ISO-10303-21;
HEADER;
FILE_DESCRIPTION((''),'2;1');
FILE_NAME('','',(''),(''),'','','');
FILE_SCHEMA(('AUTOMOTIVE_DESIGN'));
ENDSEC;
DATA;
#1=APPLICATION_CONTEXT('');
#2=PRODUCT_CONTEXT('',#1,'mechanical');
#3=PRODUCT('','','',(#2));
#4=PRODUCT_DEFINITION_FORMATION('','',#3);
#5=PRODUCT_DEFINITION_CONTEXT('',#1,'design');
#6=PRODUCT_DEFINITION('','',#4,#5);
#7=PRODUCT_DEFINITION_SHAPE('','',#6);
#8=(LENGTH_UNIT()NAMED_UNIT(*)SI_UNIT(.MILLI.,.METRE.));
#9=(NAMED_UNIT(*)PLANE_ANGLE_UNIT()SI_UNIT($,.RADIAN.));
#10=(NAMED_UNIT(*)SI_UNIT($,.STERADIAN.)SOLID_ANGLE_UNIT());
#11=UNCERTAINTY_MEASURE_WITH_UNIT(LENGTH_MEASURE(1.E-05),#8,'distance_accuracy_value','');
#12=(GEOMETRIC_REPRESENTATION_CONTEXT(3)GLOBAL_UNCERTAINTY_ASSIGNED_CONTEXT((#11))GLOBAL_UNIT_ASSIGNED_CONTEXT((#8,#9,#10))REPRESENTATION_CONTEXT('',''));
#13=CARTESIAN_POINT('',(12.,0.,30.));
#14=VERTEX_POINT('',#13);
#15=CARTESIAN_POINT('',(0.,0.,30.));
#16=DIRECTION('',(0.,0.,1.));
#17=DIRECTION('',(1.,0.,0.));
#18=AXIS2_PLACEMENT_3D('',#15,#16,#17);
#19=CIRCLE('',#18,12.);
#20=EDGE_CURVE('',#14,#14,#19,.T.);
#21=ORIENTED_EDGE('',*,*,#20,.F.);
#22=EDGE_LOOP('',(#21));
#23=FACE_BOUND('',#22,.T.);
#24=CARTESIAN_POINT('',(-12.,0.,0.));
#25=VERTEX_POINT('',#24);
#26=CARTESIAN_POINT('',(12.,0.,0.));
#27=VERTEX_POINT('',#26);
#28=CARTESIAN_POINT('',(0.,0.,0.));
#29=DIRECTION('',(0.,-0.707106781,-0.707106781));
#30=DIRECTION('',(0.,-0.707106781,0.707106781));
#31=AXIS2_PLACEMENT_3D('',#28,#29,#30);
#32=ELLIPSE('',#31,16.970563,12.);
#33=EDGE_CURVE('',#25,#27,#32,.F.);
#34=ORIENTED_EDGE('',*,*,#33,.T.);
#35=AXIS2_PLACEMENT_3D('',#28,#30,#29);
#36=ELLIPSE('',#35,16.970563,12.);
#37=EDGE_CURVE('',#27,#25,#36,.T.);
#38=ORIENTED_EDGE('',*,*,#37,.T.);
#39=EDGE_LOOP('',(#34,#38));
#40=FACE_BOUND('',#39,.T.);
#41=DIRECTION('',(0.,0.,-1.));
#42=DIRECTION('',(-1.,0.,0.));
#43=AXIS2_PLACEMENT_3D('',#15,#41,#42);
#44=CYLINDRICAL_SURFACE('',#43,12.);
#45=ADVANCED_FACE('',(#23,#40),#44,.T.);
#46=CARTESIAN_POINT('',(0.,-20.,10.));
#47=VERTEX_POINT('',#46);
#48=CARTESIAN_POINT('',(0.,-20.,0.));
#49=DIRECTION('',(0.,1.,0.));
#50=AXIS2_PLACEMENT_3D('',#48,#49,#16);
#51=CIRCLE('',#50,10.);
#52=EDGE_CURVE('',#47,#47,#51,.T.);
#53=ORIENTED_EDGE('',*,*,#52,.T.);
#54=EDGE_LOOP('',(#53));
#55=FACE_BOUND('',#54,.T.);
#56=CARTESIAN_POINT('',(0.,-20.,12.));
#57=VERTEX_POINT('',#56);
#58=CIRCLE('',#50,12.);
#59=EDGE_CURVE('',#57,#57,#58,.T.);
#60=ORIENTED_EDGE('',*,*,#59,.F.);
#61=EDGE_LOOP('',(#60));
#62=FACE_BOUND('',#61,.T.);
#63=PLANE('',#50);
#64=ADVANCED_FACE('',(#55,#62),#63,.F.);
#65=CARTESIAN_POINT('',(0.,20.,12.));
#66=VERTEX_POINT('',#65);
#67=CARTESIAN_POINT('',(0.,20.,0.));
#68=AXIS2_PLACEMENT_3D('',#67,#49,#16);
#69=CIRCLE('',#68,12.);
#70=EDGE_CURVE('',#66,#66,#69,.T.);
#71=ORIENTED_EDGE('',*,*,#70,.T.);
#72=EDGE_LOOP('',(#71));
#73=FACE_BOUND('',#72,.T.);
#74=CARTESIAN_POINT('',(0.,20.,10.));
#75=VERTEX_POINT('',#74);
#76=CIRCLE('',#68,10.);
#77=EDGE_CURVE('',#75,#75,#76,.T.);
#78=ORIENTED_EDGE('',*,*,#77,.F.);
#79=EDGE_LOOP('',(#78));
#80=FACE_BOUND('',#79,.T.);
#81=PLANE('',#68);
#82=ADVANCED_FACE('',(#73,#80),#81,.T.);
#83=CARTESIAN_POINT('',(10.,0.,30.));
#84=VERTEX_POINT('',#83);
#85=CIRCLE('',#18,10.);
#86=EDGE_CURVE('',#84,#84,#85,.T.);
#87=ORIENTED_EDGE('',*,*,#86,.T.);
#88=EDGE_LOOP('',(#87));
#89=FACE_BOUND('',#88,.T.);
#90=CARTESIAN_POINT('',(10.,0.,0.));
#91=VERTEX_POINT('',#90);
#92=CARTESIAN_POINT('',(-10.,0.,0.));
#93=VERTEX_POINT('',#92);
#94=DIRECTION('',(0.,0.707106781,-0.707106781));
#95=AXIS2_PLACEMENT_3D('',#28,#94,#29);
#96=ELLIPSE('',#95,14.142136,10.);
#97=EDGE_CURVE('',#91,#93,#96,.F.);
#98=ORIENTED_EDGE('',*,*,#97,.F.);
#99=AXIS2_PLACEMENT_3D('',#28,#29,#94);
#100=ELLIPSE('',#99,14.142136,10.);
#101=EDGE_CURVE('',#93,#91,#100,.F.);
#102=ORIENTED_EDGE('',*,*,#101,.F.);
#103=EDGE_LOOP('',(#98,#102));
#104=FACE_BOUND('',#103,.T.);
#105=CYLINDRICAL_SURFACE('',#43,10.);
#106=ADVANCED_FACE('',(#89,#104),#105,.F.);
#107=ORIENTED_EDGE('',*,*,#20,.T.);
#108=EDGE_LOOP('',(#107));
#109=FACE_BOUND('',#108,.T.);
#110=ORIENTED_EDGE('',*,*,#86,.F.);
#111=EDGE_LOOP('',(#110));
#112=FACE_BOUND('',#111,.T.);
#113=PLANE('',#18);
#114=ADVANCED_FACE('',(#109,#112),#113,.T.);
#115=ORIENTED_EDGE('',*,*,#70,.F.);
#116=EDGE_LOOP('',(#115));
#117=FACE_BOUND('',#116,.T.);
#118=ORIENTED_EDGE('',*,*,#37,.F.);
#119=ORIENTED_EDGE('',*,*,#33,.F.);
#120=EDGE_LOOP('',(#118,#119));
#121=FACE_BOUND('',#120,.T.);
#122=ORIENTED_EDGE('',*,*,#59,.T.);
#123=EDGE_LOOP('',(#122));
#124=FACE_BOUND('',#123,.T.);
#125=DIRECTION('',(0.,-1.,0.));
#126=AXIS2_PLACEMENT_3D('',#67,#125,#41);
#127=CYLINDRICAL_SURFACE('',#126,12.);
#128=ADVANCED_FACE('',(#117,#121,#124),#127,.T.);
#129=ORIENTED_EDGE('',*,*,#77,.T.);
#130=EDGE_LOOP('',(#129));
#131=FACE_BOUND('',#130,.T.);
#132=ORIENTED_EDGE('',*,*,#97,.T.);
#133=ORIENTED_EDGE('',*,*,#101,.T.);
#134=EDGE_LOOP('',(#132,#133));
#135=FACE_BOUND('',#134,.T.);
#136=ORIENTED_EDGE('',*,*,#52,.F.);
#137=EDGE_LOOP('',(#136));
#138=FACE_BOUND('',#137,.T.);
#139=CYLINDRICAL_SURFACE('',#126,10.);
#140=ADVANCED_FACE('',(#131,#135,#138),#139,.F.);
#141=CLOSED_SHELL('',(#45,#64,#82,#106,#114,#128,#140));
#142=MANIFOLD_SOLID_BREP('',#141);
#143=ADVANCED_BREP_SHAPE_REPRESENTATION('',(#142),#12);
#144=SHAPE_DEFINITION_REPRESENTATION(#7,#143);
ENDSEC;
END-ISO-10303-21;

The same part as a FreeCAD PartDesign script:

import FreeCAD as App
import Part
import Sketcher
from FreeCAD import Vector
Q = App.Units.Quantity

doc = App.newDocument("Part")
body = doc.addObject("PartDesign::Body", "Body")

# Sketch on XZ plane
sketch1 = body.newObject("Sketcher::SketchObject", "Sketch")
sketch1.AttachmentSupport = (doc.getObject("XZ_Plane"), [""])
sketch1.MapMode = "FlatFace"
sketch1.addGeometry([
    Part.Circle(Vector(0, 0, 0), Vector(0, 0, 1), 12),
    Part.Circle(Vector(0, 0, 0), Vector(0, 0, 1), 10),
], False)
sketch1.addConstraint([
    Sketcher.Constraint("Coincident", 0, 3, -1, 1),
    Sketcher.Constraint("Coincident", 1, 3, -1, 1),
    Sketcher.Constraint("Diameter", 0, Q("24 mm")),
    Sketcher.Constraint("Diameter", 1, Q("20 mm")),
])
pad1 = body.newObject("PartDesign::Pad", "Pad")
pad1.Profile = sketch1
pad1.Length = 40
pad1.Midplane = True

# Sketch on XY plane
sketch2 = body.newObject("Sketcher::SketchObject", "Sketch001")
sketch2.AttachmentSupport = (doc.getObject("XY_Plane"), [""])
sketch2.MapMode = "FlatFace"
sketch2.addGeometry([
    Part.Circle(Vector(0, 0, 0), Vector(0, 0, 1), 12),
    Part.Circle(Vector(0, 0, 0), Vector(0, 0, 1), 10),
], False)
sketch2.addConstraint([
    Sketcher.Constraint("Coincident", 0, 3, -1, 1),
    Sketcher.Constraint("Coincident", 1, 3, -1, 1),
    Sketcher.Constraint("Diameter", 0, Q("24 mm")),
    Sketcher.Constraint("Diameter", 1, Q("20 mm")),
])
pad2 = body.newObject("PartDesign::Pad", "Pad001")
pad2.Profile = sketch2
pad2.Length = 30

# Sketch on XY plane
sketch3 = body.newObject("Sketcher::SketchObject", "Sketch002")
sketch3.AttachmentSupport = (doc.getObject("XY_Plane"), [""])
sketch3.MapMode = "FlatFace"
sketch3.addGeometry(Part.Circle(Vector(0, 0, 0), Vector(0, 0, 1), 10), False)
sketch3.addConstraint([
    Sketcher.Constraint("Coincident", 0, 3, -1, 1),
    Sketcher.Constraint("Diameter", 0, Q("20 mm")),
])
pocket1 = body.newObject("PartDesign::Pocket", "Pocket")
pocket1.Profile = sketch3
pocket1.Length = 30
pocket1.Reversed = True

# Sketch on XZ plane
sketch4 = body.newObject("Sketcher::SketchObject", "Sketch003")
sketch4.AttachmentSupport = (doc.getObject("XZ_Plane"), [""])
sketch4.MapMode = "FlatFace"
sketch4.addGeometry(Part.Circle(Vector(0, 0, 0), Vector(0, 0, 1), 10), False)
sketch4.addConstraint([
    Sketcher.Constraint("Coincident", 0, 3, -1, 1),
    Sketcher.Constraint("Diameter", 0, Q("20 mm")),
])
pocket2 = body.newObject("PartDesign::Pocket", "Pocket001")
pocket2.Profile = sketch4
pocket2.Length = 30
pocket2.Midplane = True

doc.recompute()
